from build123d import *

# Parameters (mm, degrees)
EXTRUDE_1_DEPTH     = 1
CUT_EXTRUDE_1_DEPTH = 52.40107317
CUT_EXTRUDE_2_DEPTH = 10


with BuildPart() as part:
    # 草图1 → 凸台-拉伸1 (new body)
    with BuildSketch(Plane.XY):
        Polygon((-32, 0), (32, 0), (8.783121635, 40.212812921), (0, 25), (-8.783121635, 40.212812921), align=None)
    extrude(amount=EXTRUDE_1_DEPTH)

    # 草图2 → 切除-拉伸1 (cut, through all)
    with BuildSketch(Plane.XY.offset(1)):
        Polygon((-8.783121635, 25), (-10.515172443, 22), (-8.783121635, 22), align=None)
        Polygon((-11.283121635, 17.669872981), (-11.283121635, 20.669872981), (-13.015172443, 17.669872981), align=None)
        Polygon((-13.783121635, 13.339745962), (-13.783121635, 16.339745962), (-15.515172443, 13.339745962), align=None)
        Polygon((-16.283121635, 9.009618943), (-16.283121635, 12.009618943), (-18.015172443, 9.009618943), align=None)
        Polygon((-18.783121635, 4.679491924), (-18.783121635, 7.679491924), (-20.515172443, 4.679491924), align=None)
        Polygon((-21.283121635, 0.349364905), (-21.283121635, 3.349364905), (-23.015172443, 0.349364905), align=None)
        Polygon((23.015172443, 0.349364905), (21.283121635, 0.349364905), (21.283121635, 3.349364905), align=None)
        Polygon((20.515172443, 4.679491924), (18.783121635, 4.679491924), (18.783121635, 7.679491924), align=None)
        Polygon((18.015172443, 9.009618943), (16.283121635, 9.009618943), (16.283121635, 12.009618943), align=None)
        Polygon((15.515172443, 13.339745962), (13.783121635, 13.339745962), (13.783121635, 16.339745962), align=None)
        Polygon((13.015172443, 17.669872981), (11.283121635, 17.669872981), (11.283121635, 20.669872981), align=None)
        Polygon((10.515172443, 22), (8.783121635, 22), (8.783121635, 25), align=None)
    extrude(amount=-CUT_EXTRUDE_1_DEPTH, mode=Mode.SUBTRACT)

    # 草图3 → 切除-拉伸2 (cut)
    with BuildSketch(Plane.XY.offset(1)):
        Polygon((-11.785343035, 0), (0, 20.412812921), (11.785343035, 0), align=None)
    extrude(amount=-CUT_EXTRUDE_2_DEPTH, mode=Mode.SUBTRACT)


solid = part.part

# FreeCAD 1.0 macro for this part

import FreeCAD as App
import Part
import Sketcher

V = App.Vector
Q = App.Units.Quantity


def add_polygon(sketch, points):
    """Adds a closed chain of lines whose ends are joined by coincident constraints."""
    first, n = sketch.GeometryCount, len(points)
    for a, b in zip(points, points[1:] + points[:1]):
        sketch.addGeometry(Part.LineSegment(App.Vector(*a, 0), App.Vector(*b, 0)), False)
    for i in range(n):
        sketch.addConstraint(Sketcher.Constraint("Coincident", first + i, 2, first + (i + 1) % n, 1))

doc = App.newDocument("Part")
body = doc.addObject("PartDesign::Body", "Body")

# Sketch on XY plane
sketch1 = body.newObject("Sketcher::SketchObject", "Sketch")
sketch1.AttachmentSupport = (doc.getObject("XY_Plane"), [""])
sketch1.MapMode = "FlatFace"
add_polygon(sketch1, [(-32, 0), (32, 0), (9, 40), (0, 25), (-9, 40)])  # lines 0-4
sketch1.addConstraint([
    Sketcher.Constraint("Horizontal", 0),
    Sketcher.Constraint("Symmetric", 0, 2, 4, 2, -1, 1),
    Sketcher.Constraint("Symmetric", 1, 2, 3, 2, -2),
    Sketcher.Constraint("PointOnObject", 2, 2, -2),
    Sketcher.Constraint("Parallel", 1, 3),
    Sketcher.Constraint("DistanceX", 0, 1, 0, 2, Q("64 mm")),
    Sketcher.Constraint("Angle", 1, Q("120 deg")),
    Sketcher.Constraint("DistanceY", -1, 1, 2, 2, Q("25 mm")),
])
pad1 = body.newObject("PartDesign::Pad", "Pad")
pad1.Profile = sketch1
pad1.Length = 1

# Sketch on XY plane
sketch2 = body.newObject("Sketcher::SketchObject", "Sketch001")
sketch2.AttachmentSupport = (doc.getObject("XY_Plane"), [""])
sketch2.MapMode = "FlatFace"
sketch2.AttachmentOffset = App.Placement(V(0, 0, 1), App.Rotation())
add_polygon(sketch2, [(-8.8, 25), (-10.5, 22), (-8.8, 22)])  # lines 0-2
add_polygon(sketch2, [(-11.3, 17.7), (-11.3, 20.7), (-13, 17.7)])  # lines 3-5
add_polygon(sketch2, [(-13.8, 13.3), (-13.8, 16.3), (-15.5, 13.3)])  # lines 6-8
add_polygon(sketch2, [(-16.3, 9), (-16.3, 12), (-18, 9)])  # lines 9-11
add_polygon(sketch2, [(-18.8, 4.7), (-18.8, 7.7), (-20.5, 4.7)])  # lines 12-14
add_polygon(sketch2, [(-21.3, 0.3), (-21.3, 3.3), (-23, 0.3)])  # lines 15-17
add_polygon(sketch2, [(21.3, 0.3), (23, 0.3), (21.3, 3.3)])  # lines 18-20
add_polygon(sketch2, [(18.8, 4.7), (20.5, 4.7), (18.8, 7.7)])  # lines 21-23
add_polygon(sketch2, [(16.3, 9), (18, 9), (16.3, 12)])  # lines 24-26
add_polygon(sketch2, [(13.8, 13.3), (15.5, 13.3), (13.8, 16.3)])  # lines 27-29
add_polygon(sketch2, [(11.3, 17.7), (13, 17.7), (11.3, 20.7)])  # lines 30-32
add_polygon(sketch2, [(8.8, 22), (10.5, 22), (8.8, 25)])  # lines 33-35
sketch2.addConstraint([
    Sketcher.Constraint("Horizontal", 1),
    Sketcher.Constraint("Vertical", 2),
    Sketcher.Constraint("Vertical", 3),
    Sketcher.Constraint("Horizontal", 5),
    Sketcher.Constraint("Vertical", 6),
    Sketcher.Constraint("Horizontal", 8),
    Sketcher.Constraint("Vertical", 9),
    Sketcher.Constraint("Horizontal", 11),
    Sketcher.Constraint("Vertical", 12),
    Sketcher.Constraint("Horizontal", 14),
    Sketcher.Constraint("Vertical", 15),
    Sketcher.Constraint("Horizontal", 17),
    Sketcher.Constraint("Horizontal", 18),
    Sketcher.Constraint("Vertical", 20),
    Sketcher.Constraint("Horizontal", 21),
    Sketcher.Constraint("Vertical", 23),
    Sketcher.Constraint("Horizontal", 24),
    Sketcher.Constraint("Vertical", 26),
    Sketcher.Constraint("Horizontal", 27),
    Sketcher.Constraint("Vertical", 29),
    Sketcher.Constraint("Horizontal", 30),
    Sketcher.Constraint("Vertical", 32),
    Sketcher.Constraint("Horizontal", 33),
    Sketcher.Constraint("Vertical", 35),
    Sketcher.Constraint("Symmetric", 16, 2, 18, 2, -2),
    Sketcher.Constraint("Symmetric", 15, 2, 19, 2, -2),
    Sketcher.Constraint("Symmetric", 13, 2, 21, 2, -2),
    Sketcher.Constraint("Symmetric", 12, 2, 22, 2, -2),
    Sketcher.Constraint("Symmetric", 10, 2, 24, 2, -2),
    Sketcher.Constraint("Symmetric", 9, 2, 25, 2, -2),
    Sketcher.Constraint("Symmetric", 7, 2, 27, 2, -2),
    Sketcher.Constraint("Symmetric", 6, 2, 28, 2, -2),
    Sketcher.Constraint("Symmetric", 4, 2, 30, 2, -2),
    Sketcher.Constraint("Symmetric", 3, 2, 31, 2, -2),
    Sketcher.Constraint("Symmetric", 0, 2, 33, 2, -2),
    Sketcher.Constraint("Symmetric", 2, 2, 34, 2, -2),
    Sketcher.Constraint("Parallel", 0, 4),
    Sketcher.Constraint("Parallel", 4, 7),
    Sketcher.Constraint("Parallel", 7, 10),
    Sketcher.Constraint("Parallel", 10, 13),
    Sketcher.Constraint("Parallel", 13, 16),
    Sketcher.Constraint("Equal", 1, 5),
    Sketcher.Constraint("Equal", 5, 8),
    Sketcher.Constraint("Equal", 8, 11),
    Sketcher.Constraint("Equal", 11, 14),
    Sketcher.Constraint("Equal", 14, 17),
    Sketcher.Constraint("DistanceY", 2, 1, 2, 2, Q("3 mm")),
    Sketcher.Constraint("Angle", 0, Q("-120 deg")),
    Sketcher.Constraint("DistanceY", -1, 1, 0, 2, Q("22 mm")),
    Sketcher.Constraint("DistanceX", 6, 2, 1, 2, Q("5 mm")),
    Sketcher.Constraint("DistanceX", 9, 2, 5, 2, Q("5 mm")),
    Sketcher.Constraint("DistanceX", 12, 2, 8, 2, Q("5 mm")),
    Sketcher.Constraint("DistanceX", 15, 2, 11, 2, Q("5 mm")),
    Sketcher.Constraint("DistanceX", 3, 2, 1, 2, Q("2.5 mm")),
    Sketcher.Constraint("DistanceX", 1, 2, -1, 1, Q("8.783122 mm")),
    Sketcher.Constraint("DistanceY", -1, 1, 9, 2, Q("12.009619 mm")),
    Sketcher.Constraint("DistanceY", -1, 1, 12, 2, Q("7.679492 mm")),
    Sketcher.Constraint("DistanceY", 18, 2, 5, 2, Q("17.320508 mm")),
    Sketcher.Constraint("DistanceY", 18, 2, 8, 2, Q("12.990381 mm")),
    Sketcher.Constraint("DistanceY", 21, 2, 5, 2, Q("12.990381 mm")),
])
pocket1 = body.newObject("PartDesign::Pocket", "Pocket")
pocket1.Profile = sketch2
pocket1.Type = "ThroughAll"

# Sketch on XY plane
sketch3 = body.newObject("Sketcher::SketchObject", "Sketch002")
sketch3.AttachmentSupport = (doc.getObject("XY_Plane"), [""])
sketch3.MapMode = "FlatFace"
sketch3.AttachmentOffset = App.Placement(V(0, 0, 1), App.Rotation())
add_polygon(sketch3, [(0, 20), (-12, 0), (12, 0)])  # lines 0-2
sketch3.addConstraint([
    Sketcher.Constraint("Horizontal", 1),
    Sketcher.Constraint("Symmetric", 0, 2, 1, 2, -1, 1),
    Sketcher.Constraint("PointOnObject", 2, 2, -2),
    Sketcher.Constraint("Angle", 0, Q("-120 deg")),
    Sketcher.Constraint("DistanceX", 1, 1, 1, 2, Q("23.570686 mm")),
])
pocket2 = body.newObject("PartDesign::Pocket", "Pocket001")
pocket2.Profile = sketch3
pocket2.Length = 10

doc.recompute()
